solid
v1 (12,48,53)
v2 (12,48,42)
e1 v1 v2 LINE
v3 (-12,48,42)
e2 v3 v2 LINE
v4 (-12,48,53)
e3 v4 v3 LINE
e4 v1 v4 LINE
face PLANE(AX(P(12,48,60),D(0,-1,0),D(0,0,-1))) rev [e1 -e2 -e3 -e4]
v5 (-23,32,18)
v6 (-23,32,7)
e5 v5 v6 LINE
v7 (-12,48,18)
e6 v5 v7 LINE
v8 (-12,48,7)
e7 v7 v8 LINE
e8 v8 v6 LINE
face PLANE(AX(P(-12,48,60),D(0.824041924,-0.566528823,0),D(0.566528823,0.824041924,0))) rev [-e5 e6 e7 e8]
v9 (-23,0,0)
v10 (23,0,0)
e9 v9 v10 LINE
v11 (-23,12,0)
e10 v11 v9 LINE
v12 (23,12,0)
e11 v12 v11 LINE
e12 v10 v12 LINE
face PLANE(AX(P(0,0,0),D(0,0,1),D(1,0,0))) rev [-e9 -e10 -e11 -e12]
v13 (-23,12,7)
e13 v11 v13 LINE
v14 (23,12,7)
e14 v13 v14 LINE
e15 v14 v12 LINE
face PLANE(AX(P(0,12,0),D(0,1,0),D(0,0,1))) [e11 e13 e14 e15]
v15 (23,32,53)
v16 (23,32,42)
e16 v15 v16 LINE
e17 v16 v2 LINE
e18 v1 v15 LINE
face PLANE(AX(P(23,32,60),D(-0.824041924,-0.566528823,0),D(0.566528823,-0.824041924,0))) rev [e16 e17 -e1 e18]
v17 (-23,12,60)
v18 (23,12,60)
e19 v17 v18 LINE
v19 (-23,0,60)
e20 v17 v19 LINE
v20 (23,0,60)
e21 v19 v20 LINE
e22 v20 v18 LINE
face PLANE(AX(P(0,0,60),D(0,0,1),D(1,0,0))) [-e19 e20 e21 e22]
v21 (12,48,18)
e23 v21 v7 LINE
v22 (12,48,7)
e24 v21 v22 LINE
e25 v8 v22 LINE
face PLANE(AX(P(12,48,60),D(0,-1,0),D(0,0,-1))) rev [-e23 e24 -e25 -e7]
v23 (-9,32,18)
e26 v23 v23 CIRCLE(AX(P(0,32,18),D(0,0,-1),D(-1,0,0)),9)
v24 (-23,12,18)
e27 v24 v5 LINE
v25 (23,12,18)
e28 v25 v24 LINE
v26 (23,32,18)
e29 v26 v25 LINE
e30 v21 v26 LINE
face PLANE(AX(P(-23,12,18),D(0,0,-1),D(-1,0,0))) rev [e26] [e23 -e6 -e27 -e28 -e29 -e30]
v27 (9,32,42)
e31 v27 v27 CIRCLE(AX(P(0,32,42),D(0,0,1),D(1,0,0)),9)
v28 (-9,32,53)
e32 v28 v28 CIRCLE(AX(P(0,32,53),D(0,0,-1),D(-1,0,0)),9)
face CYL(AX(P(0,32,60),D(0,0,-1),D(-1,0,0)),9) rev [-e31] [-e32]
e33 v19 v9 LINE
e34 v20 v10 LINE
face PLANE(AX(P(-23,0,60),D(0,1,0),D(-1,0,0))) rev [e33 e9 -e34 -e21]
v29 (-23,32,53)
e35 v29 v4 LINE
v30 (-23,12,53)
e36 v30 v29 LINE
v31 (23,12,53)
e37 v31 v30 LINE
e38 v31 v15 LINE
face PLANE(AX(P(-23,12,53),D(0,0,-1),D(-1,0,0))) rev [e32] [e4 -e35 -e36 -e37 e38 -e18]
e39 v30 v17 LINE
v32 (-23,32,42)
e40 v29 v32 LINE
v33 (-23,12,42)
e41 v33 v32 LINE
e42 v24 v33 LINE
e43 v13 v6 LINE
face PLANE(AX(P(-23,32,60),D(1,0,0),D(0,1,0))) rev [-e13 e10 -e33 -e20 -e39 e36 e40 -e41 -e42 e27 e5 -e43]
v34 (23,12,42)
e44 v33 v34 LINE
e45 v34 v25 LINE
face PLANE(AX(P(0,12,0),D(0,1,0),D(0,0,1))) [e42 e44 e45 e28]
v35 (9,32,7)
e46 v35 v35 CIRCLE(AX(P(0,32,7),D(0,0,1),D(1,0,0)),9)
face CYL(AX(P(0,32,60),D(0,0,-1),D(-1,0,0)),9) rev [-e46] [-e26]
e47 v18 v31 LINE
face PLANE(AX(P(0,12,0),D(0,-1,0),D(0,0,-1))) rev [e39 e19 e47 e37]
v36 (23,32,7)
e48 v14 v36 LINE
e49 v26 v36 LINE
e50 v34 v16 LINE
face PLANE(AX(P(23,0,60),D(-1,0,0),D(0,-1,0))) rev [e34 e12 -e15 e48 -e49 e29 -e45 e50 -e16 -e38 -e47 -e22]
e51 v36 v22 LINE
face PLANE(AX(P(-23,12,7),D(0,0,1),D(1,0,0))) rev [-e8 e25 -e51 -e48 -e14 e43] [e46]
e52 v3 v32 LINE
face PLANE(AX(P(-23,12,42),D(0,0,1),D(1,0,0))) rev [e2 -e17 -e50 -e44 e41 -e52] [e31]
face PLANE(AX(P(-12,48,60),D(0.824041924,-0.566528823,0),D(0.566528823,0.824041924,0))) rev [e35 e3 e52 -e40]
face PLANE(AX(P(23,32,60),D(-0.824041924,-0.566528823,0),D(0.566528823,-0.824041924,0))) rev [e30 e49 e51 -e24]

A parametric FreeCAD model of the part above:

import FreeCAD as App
import Part
import Sketcher
Q = App.Units.Quantity

doc = App.newDocument("Part")
body = doc.addObject("PartDesign::Body", "Body")

# Sketch on XY plane
sketch1 = body.newObject("Sketcher::SketchObject", "Sketch")
sketch1.AttachmentSupport = (doc.getObject("XY_Plane"), [""])
sketch1.MapMode = "FlatFace"
sketch1.addGeometry(Part.LineSegment(App.Vector(-23, 0, 0), App.Vector(23, 0, 0)), False)
sketch1.addGeometry(Part.LineSegment(App.Vector(23, 0, 0), App.Vector(23, 32, 0)), False)
sketch1.addGeometry(Part.LineSegment(App.Vector(23, 32, 0), App.Vector(12, 48, 0)), False)
sketch1.addGeometry(Part.LineSegment(App.Vector(12, 48, 0), App.Vector(-12, 48, 0)), False)
sketch1.addGeometry(Part.LineSegment(App.Vector(-12, 48, 0), App.Vector(-23, 32, 0)), False)
sketch1.addGeometry(Part.LineSegment(App.Vector(-23, 32, 0), App.Vector(-23, 0, 0)), False)
sketch1.addGeometry(Part.Circle(App.Vector(0, 32, 0), App.Vector(0, 0, 1), 9), False)
sketch1.addConstraint(Sketcher.Constraint("Coincident", 0, 2, 1, 1))
sketch1.addConstraint(Sketcher.Constraint("Coincident", 1, 2, 2, 1))
sketch1.addConstraint(Sketcher.Constraint("Coincident", 2, 2, 3, 1))
sketch1.addConstraint(Sketcher.Constraint("Coincident", 3, 2, 4, 1))
sketch1.addConstraint(Sketcher.Constraint("Coincident", 4, 2, 5, 1))
sketch1.addConstraint(Sketcher.Constraint("Coincident", 5, 2, 0, 1))
sketch1.addConstraint(Sketcher.Constraint("Horizontal", 0))
sketch1.addConstraint(Sketcher.Constraint("Vertical", 1))
sketch1.addConstraint(Sketcher.Constraint("Horizontal", 3))
sketch1.addConstraint(Sketcher.Constraint("Vertical", 5))
sketch1.addConstraint(Sketcher.Constraint("Symmetric", 0, 2, 5, 2, -1, 1))
sketch1.addConstraint(Sketcher.Constraint("PointOnObject", 6, 3, -2))
sketch1.addConstraint(Sketcher.Constraint("Horizontal", 6, 3, 1, 2))
sketch1.addConstraint(Sketcher.Constraint("Horizontal", 1, 2, 4, 2))
sketch1.addConstraint(Sketcher.Constraint("Equal", 2, 4))
sketch1.addConstraint(Sketcher.Constraint("Diameter", 6, Q("18 mm")))
sketch1.addConstraint(Sketcher.Constraint("DistanceX", 0, 1, 0, 2, Q("46 mm")))
sketch1.addConstraint(Sketcher.Constraint("DistanceX", 3, 2, 3, 1, Q("24 mm")))
sketch1.addConstraint(Sketcher.Constraint("DistanceY", 1, 1, 1, 2, Q("32 mm")))
sketch1.addConstraint(Sketcher.Constraint("DistanceY", -1, 1, 2, 2, Q("48 mm")))
pad1 = body.newObject("PartDesign::Pad", "Pad")
pad1.Profile = sketch1
pad1.Length = 60

# Sketch on XZ plane
sketch2 = body.newObject("Sketcher::SketchObject", "Sketch001")
sketch2.AttachmentSupport = (doc.getObject("XZ_Plane"), [""])
sketch2.MapMode = "FlatFace"
sketch2.AttachmentOffset = App.Placement(App.Vector(0, 0, -48), App.Rotation())
sketch2.addGeometry(Part.LineSegment(App.Vector(-23, 0, 0), App.Vector(-23, 7, 0)), False)
sketch2.addGeometry(Part.LineSegment(App.Vector(-23, 7, 0), App.Vector(23, 7, 0)), False)
sketch2.addGeometry(Part.LineSegment(App.Vector(23, 7, 0), App.Vector(23, 0, 0)), False)
sketch2.addGeometry(Part.LineSegment(App.Vector(23, 0, 0), App.Vector(-23, 0, 0)), False)
sketch2.addGeometry(Part.LineSegment(App.Vector(-23, 53, 0), App.Vector(-23, 60, 0)), False)
sketch2.addGeometry(Part.LineSegment(App.Vector(-23, 60, 0), App.Vector(23, 60, 0)), False)
sketch2.addGeometry(Part.LineSegment(App.Vector(23, 60, 0), App.Vector(23, 53, 0)), False)
sketch2.addGeometry(Part.LineSegment(App.Vector(23, 53, 0), App.Vector(-23, 53, 0)), False)
sketch2.addConstraint(Sketcher.Constraint("Coincident", 0, 2, 1, 1))
sketch2.addConstraint(Sketcher.Constraint("Coincident", 1, 2, 2, 1))
sketch2.addConstraint(Sketcher.Constraint("Coincident", 2, 2, 3, 1))
sketch2.addConstraint(Sketcher.Constraint("Coincident", 3, 2, 0, 1))
sketch2.addConstraint(Sketcher.Constraint("Coincident", 4, 2, 5, 1))
sketch2.addConstraint(Sketcher.Constraint("Coincident", 5, 2, 6, 1))
sketch2.addConstraint(Sketcher.Constraint("Coincident", 6, 2, 7, 1))
sketch2.addConstraint(Sketcher.Constraint("Coincident", 7, 2, 4, 1))
sketch2.addConstraint(Sketcher.Constraint("Vertical", 0))
sketch2.addConstraint(Sketcher.Constraint("Horizontal", 1))
sketch2.addConstraint(Sketcher.Constraint("Vertical", 2))
sketch2.addConstraint(Sketcher.Constraint("Horizontal", 3))
sketch2.addConstraint(Sketcher.Constraint("Vertical", 4))
sketch2.addConstraint(Sketcher.Constraint("Horizontal", 5))
sketch2.addConstraint(Sketcher.Constraint("Vertical", 6))
sketch2.addConstraint(Sketcher.Constraint("Horizontal", 7))
sketch2.addConstraint(Sketcher.Constraint("Symmetric", 2, 2, 3, 2, -1, 1))
sketch2.addConstraint(Sketcher.Constraint("Vertical", 3, 2, 4, 2))
sketch2.addConstraint(Sketcher.Constraint("Vertical", 2, 2, 5, 2))
sketch2.addConstraint(Sketcher.Constraint("Equal", 2, 4))
sketch2.addConstraint(Sketcher.Constraint("DistanceX", 1, 1, 1, 2, Q("46 mm")))
sketch2.addConstraint(Sketcher.Constraint("DistanceY", 0, 1, 0, 2, Q("7 mm")))
sketch2.addConstraint(Sketcher.Constraint("DistanceY", -1, 1, 4, 2, Q("60 mm")))
pocket1 = body.newObject("PartDesign::Pocket", "Pocket")
pocket1.Profile = sketch2
pocket1.Length = 36
pocket1.Reversed = True

# Sketch on XZ plane
sketch3 = body.newObject("Sketcher::SketchObject", "Sketch002")
sketch3.AttachmentSupport = (doc.getObject("XZ_Plane"), [""])
sketch3.MapMode = "FlatFace"
sketch3.AttachmentOffset = App.Placement(App.Vector(0, 0, -48), App.Rotation())
sketch3.addGeometry(Part.LineSegment(App.Vector(-23, 18, 0), App.Vector(-23, 42, 0)), False)
sketch3.addGeometry(Part.LineSegment(App.Vector(-23, 42, 0), App.Vector(40.672902, 42, 0)), False)
sketch3.addGeometry(Part.LineSegment(App.Vector(40.672902, 42, 0), App.Vector(40.672902, 18, 0)), False)
sketch3.addGeometry(Part.LineSegment(App.Vector(40.672902, 18, 0), App.Vector(-23, 18, 0)), False)
sketch3.addConstraint(Sketcher.Constraint("Coincident", 0, 2, 1, 1))
sketch3.addConstraint(Sketcher.Constraint("Coincident", 1, 2, 2, 1))
sketch3.addConstraint(Sketcher.Constraint("Coincident", 2, 2, 3, 1))
sketch3.addConstraint(Sketcher.Constraint("Coincident", 3, 2, 0, 1))
sketch3.addConstraint(Sketcher.Constraint("Vertical", 0))
sketch3.addConstraint(Sketcher.Constraint("Horizontal", 1))
sketch3.addConstraint(Sketcher.Constraint("Vertical", 2))
sketch3.addConstraint(Sketcher.Constraint("Horizontal", 3))
sketch3.addConstraint(Sketcher.Constraint("DistanceY", 0, 1, 0, 2, Q("24 mm")))
sketch3.addConstraint(Sketcher.Constraint("DistanceX", 0, 2, -1, 1, Q("23 mm")))
sketch3.addConstraint(Sketcher.Constraint("DistanceY", -1, 1, 0, 2, Q("42 mm")))
sketch3.addConstraint(Sketcher.Constraint("DistanceX", 1, 1, 1, 2, Q("63.672902 mm")))
pocket2 = body.newObject("PartDesign::Pocket", "Pocket001")
pocket2.Profile = sketch3
pocket2.Length = 36
pocket2.Reversed = True

doc.recompute()
